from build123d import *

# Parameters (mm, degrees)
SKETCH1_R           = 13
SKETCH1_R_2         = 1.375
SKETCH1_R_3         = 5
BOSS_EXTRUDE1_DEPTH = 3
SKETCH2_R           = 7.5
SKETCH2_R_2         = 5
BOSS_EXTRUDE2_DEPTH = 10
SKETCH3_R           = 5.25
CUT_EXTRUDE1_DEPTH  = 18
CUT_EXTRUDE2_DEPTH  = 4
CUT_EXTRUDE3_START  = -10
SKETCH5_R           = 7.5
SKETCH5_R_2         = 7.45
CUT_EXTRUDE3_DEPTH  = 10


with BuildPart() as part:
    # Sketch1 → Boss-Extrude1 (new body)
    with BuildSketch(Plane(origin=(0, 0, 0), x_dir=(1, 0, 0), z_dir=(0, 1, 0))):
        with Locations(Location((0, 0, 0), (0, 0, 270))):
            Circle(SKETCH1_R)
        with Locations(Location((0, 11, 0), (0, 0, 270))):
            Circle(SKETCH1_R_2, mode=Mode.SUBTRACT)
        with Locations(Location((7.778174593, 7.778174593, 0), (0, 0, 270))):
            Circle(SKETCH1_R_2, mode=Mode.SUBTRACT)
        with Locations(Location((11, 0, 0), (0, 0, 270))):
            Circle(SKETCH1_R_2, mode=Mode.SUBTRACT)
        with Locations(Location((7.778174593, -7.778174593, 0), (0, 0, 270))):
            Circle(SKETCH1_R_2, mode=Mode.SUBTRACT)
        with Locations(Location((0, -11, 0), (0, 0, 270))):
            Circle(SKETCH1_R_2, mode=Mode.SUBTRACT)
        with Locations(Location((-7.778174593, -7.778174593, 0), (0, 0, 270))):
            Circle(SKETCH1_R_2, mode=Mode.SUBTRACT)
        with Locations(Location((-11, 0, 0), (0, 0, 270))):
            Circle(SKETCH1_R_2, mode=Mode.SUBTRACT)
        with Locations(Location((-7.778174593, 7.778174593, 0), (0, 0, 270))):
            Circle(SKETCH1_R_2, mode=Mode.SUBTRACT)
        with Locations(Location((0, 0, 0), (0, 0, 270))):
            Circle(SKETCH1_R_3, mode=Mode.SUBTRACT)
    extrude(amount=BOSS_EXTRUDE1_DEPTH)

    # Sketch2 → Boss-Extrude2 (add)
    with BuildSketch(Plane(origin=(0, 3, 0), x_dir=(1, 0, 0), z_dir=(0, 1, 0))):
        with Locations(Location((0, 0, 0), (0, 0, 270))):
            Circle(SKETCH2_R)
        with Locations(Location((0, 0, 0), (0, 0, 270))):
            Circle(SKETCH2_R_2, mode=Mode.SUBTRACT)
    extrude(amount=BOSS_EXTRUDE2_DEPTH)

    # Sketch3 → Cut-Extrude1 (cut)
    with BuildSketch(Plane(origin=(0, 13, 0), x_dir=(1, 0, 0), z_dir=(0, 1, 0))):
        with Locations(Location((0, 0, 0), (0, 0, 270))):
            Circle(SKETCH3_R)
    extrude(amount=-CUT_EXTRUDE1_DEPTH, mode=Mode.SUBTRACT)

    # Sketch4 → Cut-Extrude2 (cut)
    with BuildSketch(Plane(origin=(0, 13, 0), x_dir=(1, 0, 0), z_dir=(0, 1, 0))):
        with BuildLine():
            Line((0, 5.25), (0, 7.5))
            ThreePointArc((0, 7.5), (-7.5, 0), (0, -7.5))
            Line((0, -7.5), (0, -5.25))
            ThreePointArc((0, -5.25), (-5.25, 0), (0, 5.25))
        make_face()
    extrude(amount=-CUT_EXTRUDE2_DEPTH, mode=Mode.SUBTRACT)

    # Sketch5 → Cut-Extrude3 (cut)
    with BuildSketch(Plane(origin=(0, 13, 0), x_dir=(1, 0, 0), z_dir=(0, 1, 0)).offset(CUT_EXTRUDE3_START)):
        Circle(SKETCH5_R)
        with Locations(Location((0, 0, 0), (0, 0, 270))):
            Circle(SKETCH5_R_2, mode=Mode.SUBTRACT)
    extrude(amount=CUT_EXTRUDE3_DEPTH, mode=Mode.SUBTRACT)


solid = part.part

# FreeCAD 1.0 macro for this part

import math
import FreeCAD as App
import Part
import Sketcher

doc = App.newDocument("Part")
body = doc.addObject("PartDesign::Body", "Body")

sketch1 = doc.addObject("Sketcher::SketchObject", "Sketch")
body.addObject(sketch1)
sketch1.AttachmentSupport = (doc.XZ_Plane, [""])
sketch1.MapMode = "FlatFace"
sketch1.addGeometry([
    Part.Circle(App.Vector(0, 0, 0), App.Vector(0, 0, 1), 13),
    Part.Circle(App.Vector(-7.8, -7.8, 0), App.Vector(0, 0, 1), 1.4),
    Part.Circle(App.Vector(0, -11, 0), App.Vector(0, 0, 1), 1.4),
    Part.Circle(App.Vector(-11, 0, 0), App.Vector(0, 0, 1), 1.4),
    Part.Circle(App.Vector(-7.8, 7.8, 0), App.Vector(0, 0, 1), 1.4),
    Part.Circle(App.Vector(7.8, -7.8, 0), App.Vector(0, 0, 1), 1.4),
    Part.Circle(App.Vector(11, 0, 0), App.Vector(0, 0, 1), 1.4),
    Part.Circle(App.Vector(0, 0, 0), App.Vector(0, 0, 1), 5),
    Part.Circle(App.Vector(0, 11, 0), App.Vector(0, 0, 1), 1.4),
    Part.Circle(App.Vector(7.8, 7.8, 0), App.Vector(0, 0, 1), 1.4),
], False)
sketch1.addConstraint([
    Sketcher.Constraint("Coincident", 0, 3, -1, 1),
    Sketcher.Constraint("Coincident", 7, 3, -1, 1),
    Sketcher.Constraint("Equal", 1, 2),
    Sketcher.Constraint("Equal", 2, 3),
    Sketcher.Constraint("Equal", 3, 4),
    Sketcher.Constraint("Equal", 4, 5),
    Sketcher.Constraint("Equal", 5, 6),
    Sketcher.Constraint("Equal", 6, 8),
    Sketcher.Constraint("Equal", 8, 9),
    Sketcher.Constraint("Symmetric", 4, 3, 5, 3, -1, 1),
    Sketcher.Constraint("Symmetric", 3, 3, 6, 3, -1, 1),
    Sketcher.Constraint("Symmetric", 2, 3, 8, 3, -1, 1),
    Sketcher.Constraint("Symmetric", 1, 3, 9, 3, -1, 1),
    Sketcher.Constraint("Symmetric", 1, 3, 5, 3, -2),
    Sketcher.Constraint("PointOnObject", 2, 3, -2),
    Sketcher.Constraint("PointOnObject", 3, 3, -1),
    Sketcher.Constraint("Diameter", 0, 26.0),
    Sketcher.Constraint("Diameter", 7, 10.0),
    Sketcher.Constraint("Diameter", 1, 2.75),
    Sketcher.Constraint("DistanceY", 2, 3, -1, 1, 11.0),
    Sketcher.Constraint("DistanceX", 3, 3, -1, 1, 11.0),
    Sketcher.Constraint("DistanceY", 1, 3, 4, 3, 15.556349),
    Sketcher.Constraint("DistanceX", 1, 3, 5, 3, 15.556349),
])
pad1 = doc.addObject("PartDesign::Pad", "Pad")
body.addObject(pad1)
pad1.Profile = sketch1
pad1.Length = 3
pad1.Reversed = True

sketch2 = doc.addObject("Sketcher::SketchObject", "Sketch001")
body.addObject(sketch2)
sketch2.AttachmentSupport = (doc.XZ_Plane, [""])
sketch2.MapMode = "FlatFace"
sketch2.AttachmentOffset = App.Placement(App.Vector(0, 0, -3), App.Rotation())
sketch2.addGeometry([
    Part.Circle(App.Vector(0, 0, 0), App.Vector(0, 0, 1), 8),
    Part.Circle(App.Vector(0, 0, 0), App.Vector(0, 0, 1), 5),
], False)
sketch2.addConstraint([
    Sketcher.Constraint("Coincident", 0, 3, -1, 1),
    Sketcher.Constraint("Coincident", 1, 3, -1, 1),
    Sketcher.Constraint("Diameter", 0, 15.0),
    Sketcher.Constraint("Diameter", 1, 10.0),
])
pad2 = doc.addObject("PartDesign::Pad", "Pad001")
body.addObject(pad2)
pad2.Profile = sketch2
pad2.Length = 10
pad2.Reversed = True

sketch3 = doc.addObject("Sketcher::SketchObject", "Sketch002")
body.addObject(sketch3)
sketch3.AttachmentSupport = (doc.XZ_Plane, [""])
sketch3.MapMode = "FlatFace"
sketch3.AttachmentOffset = App.Placement(App.Vector(0, 0, -13), App.Rotation())
sketch3.addGeometry(Part.Circle(App.Vector(0, 0, 0), App.Vector(0, 0, 1), 5), False)
sketch3.addConstraint([
    Sketcher.Constraint("Coincident", 0, 3, -1, 1),
    Sketcher.Constraint("Diameter", 0, 10.5),
])
pocket1 = doc.addObject("PartDesign::Pocket", "Pocket")
body.addObject(pocket1)
pocket1.Profile = sketch3
pocket1.Length = 18
pocket1.Reversed = True

sketch4 = doc.addObject("Sketcher::SketchObject", "Sketch003")
body.addObject(sketch4)
sketch4.AttachmentSupport = (doc.XZ_Plane, [""])
sketch4.MapMode = "FlatFace"
sketch4.AttachmentOffset = App.Placement(App.Vector(0, 0, -13), App.Rotation())
sketch4.addGeometry([
    Part.LineSegment(App.Vector(0, -5.2, 0), App.Vector(0, -7.5, 0)),
    Part.ArcOfCircle(Part.Circle(App.Vector(0, 0, 0), App.Vector(0, 0, 1), 7.5), math.radians(90), math.radians(270)),
    Part.LineSegment(App.Vector(0, 7.5, 0), App.Vector(0, 5.2, 0)),
    Part.ArcOfCircle(Part.Circle(App.Vector(0, 0, 0), App.Vector(0, 0, 1), 5.2), math.radians(90), math.radians(270)),
], False)
sketch4.addConstraint([
    Sketcher.Constraint("Coincident", 0, 2, 1, 2),
    Sketcher.Constraint("Coincident", 1, 1, 2, 1),
    Sketcher.Constraint("Coincident", 2, 2, 3, 1),
    Sketcher.Constraint("Coincident", 3, 2, 0, 1),
    Sketcher.Constraint("Vertical", 0),
    Sketcher.Constraint("Vertical", 2),
    Sketcher.Constraint("Coincident", 1, 3, -1, 1),
    Sketcher.Constraint("Coincident", 3, 3, -1, 1),
    Sketcher.Constraint("PointOnObject", 0, 2, -2),
    Sketcher.Constraint("PointOnObject", 1, 1, -2),
    Sketcher.Constraint("Radius", 1, 7.5),
    Sketcher.Constraint("Radius", 3, 5.25),
])
pocket2 = doc.addObject("PartDesign::Pocket", "Pocket001")
body.addObject(pocket2)
pocket2.Profile = sketch4
pocket2.Length = 4
pocket2.Reversed = True

sketch5 = doc.addObject("Sketcher::SketchObject", "Sketch004")
body.addObject(sketch5)
sketch5.AttachmentSupport = (doc.XZ_Plane, [""])
sketch5.MapMode = "FlatFace"
sketch5.AttachmentOffset = App.Placement(App.Vector(0, 0, -3), App.Rotation())
sketch5.addGeometry([
    Part.Circle(App.Vector(0, 0, 0), App.Vector(0, 0, 1), 8),
    Part.Circle(App.Vector(0, 0, 0), App.Vector(0, 0, 1), 7),
], False)
sketch5.addConstraint([
    Sketcher.Constraint("Coincident", 0, 3, -1, 1),
    Sketcher.Constraint("Coincident", 1, 3, -1, 1),
    Sketcher.Constraint("Diameter", 0, 15.0),
    Sketcher.Constraint("Diameter", 1, 14.9),
])
pocket3 = doc.addObject("PartDesign::Pocket", "Pocket002")
body.addObject(pocket3)
pocket3.Profile = sketch5
pocket3.Length = 10

doc.recompute()
